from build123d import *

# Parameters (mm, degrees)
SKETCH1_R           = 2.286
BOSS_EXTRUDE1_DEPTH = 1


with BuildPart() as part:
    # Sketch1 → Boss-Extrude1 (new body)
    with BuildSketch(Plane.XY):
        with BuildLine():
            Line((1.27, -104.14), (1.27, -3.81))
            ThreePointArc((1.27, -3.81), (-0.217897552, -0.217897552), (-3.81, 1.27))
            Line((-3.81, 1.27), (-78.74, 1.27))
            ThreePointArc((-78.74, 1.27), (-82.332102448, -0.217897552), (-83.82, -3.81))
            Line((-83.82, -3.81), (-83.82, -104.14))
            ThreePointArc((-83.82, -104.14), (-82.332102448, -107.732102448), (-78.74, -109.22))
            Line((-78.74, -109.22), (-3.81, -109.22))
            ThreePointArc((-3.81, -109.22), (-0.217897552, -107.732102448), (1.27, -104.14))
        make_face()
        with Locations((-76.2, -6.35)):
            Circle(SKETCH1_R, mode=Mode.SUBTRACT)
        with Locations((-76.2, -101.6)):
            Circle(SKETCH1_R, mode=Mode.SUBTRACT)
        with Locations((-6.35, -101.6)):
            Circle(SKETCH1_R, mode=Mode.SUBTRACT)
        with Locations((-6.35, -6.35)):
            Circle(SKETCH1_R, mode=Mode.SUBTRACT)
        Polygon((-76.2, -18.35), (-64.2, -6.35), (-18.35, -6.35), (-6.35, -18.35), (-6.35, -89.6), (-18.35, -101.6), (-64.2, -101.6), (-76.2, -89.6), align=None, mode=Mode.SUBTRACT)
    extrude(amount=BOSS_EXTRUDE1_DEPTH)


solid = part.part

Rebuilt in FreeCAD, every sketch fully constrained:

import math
import FreeCAD as App
import Part
import Sketcher

V = App.Vector
Q = App.Units.Quantity


def add_polygon(sketch, points):
    """Adds a closed chain of lines whose ends are joined by coincident constraints."""
    first, n = sketch.GeometryCount, len(points)
    for a, b in zip(points, points[1:] + points[:1]):
        sketch.addGeometry(Part.LineSegment(App.Vector(*a, 0), App.Vector(*b, 0)), False)
    for i in range(n):
        sketch.addConstraint(Sketcher.Constraint("Coincident", first + i, 2, first + (i + 1) % n, 1))

doc = App.newDocument("Part")
params = doc.addObject("Spreadsheet::Sheet", "Params")
for row, (alias, value) in enumerate([
    ("sketch1_radius", "0.2 in"),
    ("sketch1_diameter", "0.18 in"),
    ("sketch1_width", "2.95 in"),
    ("sketch1_height", "3.95 in"),
    ("pad1_length", "1 mm"),
], start=1):
    params.set(f"A{row}", alias)
    params.set(f"B{row}", "=" + value)
    params.setAlias(f"B{row}", alias)

body = doc.addObject("PartDesign::Body", "Body")

# Sketch on XY plane
sketch1 = body.newObject("Sketcher::SketchObject", "Sketch")
sketch1.AttachmentSupport = (doc.getObject("XY_Plane"), [""])
sketch1.MapMode = "FlatFace"
sketch1.addGeometry(Part.LineSegment(V(1.27, -104.14, 0), V(1.27, -3.81, 0)), False)  # 0
sketch1.addGeometry(Part.ArcOfCircle(Part.Circle(V(-3.81, -3.81, 0), V(0, 0, 1), 5.08), math.radians(0), math.radians(90)), False)  # 1
sketch1.addGeometry(Part.LineSegment(V(-3.81, 1.27, 0), V(-78.74, 1.27, 0)), False)  # 2
sketch1.addGeometry(Part.ArcOfCircle(Part.Circle(V(-78.74, -3.81, 0), V(0, 0, 1), 5.08), math.radians(90), math.radians(180)), False)  # 3
sketch1.addGeometry(Part.LineSegment(V(-83.82, -3.81, 0), V(-83.82, -104.14, 0)), False)  # 4
sketch1.addGeometry(Part.ArcOfCircle(Part.Circle(V(-78.74, -104.14, 0), V(0, 0, 1), 5.08), math.radians(-180), math.radians(-90)), False)  # 5
sketch1.addGeometry(Part.LineSegment(V(-78.74, -109.22, 0), V(-3.81, -109.22, 0)), False)  # 6
sketch1.addGeometry(Part.ArcOfCircle(Part.Circle(V(-3.81, -104.14, 0), V(0, 0, 1), 5.08), math.radians(-90), math.radians(0)), False)  # 7
sketch1.addGeometry(Part.Circle(V(-76.2, -101.6, 0), V(0, 0, 1), 2.286), False)  # 8
sketch1.addGeometry(Part.Circle(V(-6.35, -101.6, 0), V(0, 0, 1), 2.286), False)  # 9
add_polygon(sketch1, [(-76.2, -89.6), (-76.2, -18.35), (-64.2, -6.35), (-18.35, -6.35), (-6.35, -18.35), (-6.35, -89.6), (-18.35, -101.6), (-64.2, -101.6)])  # lines 10-17
sketch1.addGeometry(Part.Circle(V(-76.2, -6.35, 0), V(0, 0, 1), 2.286), False)  # 18
sketch1.addGeometry(Part.Circle(V(-6.35, -6.35, 0), V(0, 0, 1), 2.286), False)  # 19
sketch1.addConstraint([
    Sketcher.Constraint("Tangent", 0, 2, 1, 1),
    Sketcher.Constraint("Tangent", 1, 2, 2, 1),
    Sketcher.Constraint("Tangent", 2, 2, 3, 1),
    Sketcher.Constraint("Tangent", 3, 2, 4, 1),
    Sketcher.Constraint("Tangent", 4, 2, 5, 1),
    Sketcher.Constraint("Tangent", 5, 2, 6, 1),
    Sketcher.Constraint("Tangent", 6, 2, 7, 1),
    Sketcher.Constraint("Tangent", 7, 2, 0, 1),
    Sketcher.Constraint("Vertical", 0),
    Sketcher.Constraint("Horizontal", 2),
    Sketcher.Constraint("Vertical", 4),
    Sketcher.Constraint("Horizontal", 6),
    Sketcher.Constraint("Vertical", 10),
    Sketcher.Constraint("Horizontal", 12),
    Sketcher.Constraint("Vertical", 14),
    Sketcher.Constraint("Horizontal", 16),
    Sketcher.Constraint("Equal", 1, 3),
    Sketcher.Constraint("Equal", 3, 5),
    Sketcher.Constraint("Equal", 5, 7),
    Sketcher.Constraint("Equal", 8, 9),
    Sketcher.Constraint("Equal", 9, 18),
    Sketcher.Constraint("Equal", 18, 19),
    Sketcher.Constraint("Perpendicular", 11, 13),
    Sketcher.Constraint("Perpendicular", 13, 15),
    Sketcher.Constraint("Perpendicular", 15, 17),
    Sketcher.Constraint("Horizontal", 8, 3, 9, 3),
    Sketcher.Constraint("Horizontal", 18, 3, 19, 3),
    Sketcher.Constraint("Horizontal", 19, 3, 11, 2),
    Sketcher.Constraint("Horizontal", 10, 2, 13, 2),
    Sketcher.Constraint("Horizontal", 9, 3, 15, 2),
    Sketcher.Constraint("Horizontal", 14, 2, 17, 2),
    Sketcher.Constraint("Vertical", 8, 3, 18, 3),
    Sketcher.Constraint("Vertical", 9, 3, 19, 3),
    Sketcher.Constraint("Vertical", 18, 3, 10, 2),
    Sketcher.Constraint("Vertical", 19, 3, 13, 2),
    Sketcher.Constraint("Vertical", 12, 2, 15, 2),
    Sketcher.Constraint("Vertical", 11, 2, 16, 2),
    Sketcher.Constraint("Radius", 1, Q("0.2 in")),
    Sketcher.Constraint("Diameter", 8, Q("0.18 in")),
    Sketcher.Constraint("DistanceX", 8, 3, -1, 1, Q("3 in")),
    Sketcher.Constraint("DistanceY", 8, 3, -1, 1, Q("4 in")),
    Sketcher.Constraint("DistanceX", 2, 2, 2, 1, Q("2.95 in")),
    Sketcher.Constraint("DistanceY", 0, 1, 0, 2, Q("3.95 in")),
    Sketcher.Constraint("DistanceX", 3, 3, -1, 1, Q("3.1 in")),
    Sketcher.Constraint("DistanceY", 5, 3, -1, 1, Q("4.1 in")),
    Sketcher.Constraint("DistanceX", 9, 3, 7, 3, Q("0.1 in")),
    Sketcher.Constraint("DistanceY", 18, 3, 3, 3, Q("0.1 in")),
    Sketcher.Constraint("DistanceX", 12, 1, 12, 2, 45.85),
])
sketch1.setExpression("Constraints[45]", "Params.sketch1_radius")
sketch1.setExpression("Constraints[46]", "Params.sketch1_diameter")
sketch1.setExpression("Constraints[49]", "Params.sketch1_width")
sketch1.setExpression("Constraints[50]", "Params.sketch1_height")
pad1 = body.newObject("PartDesign::Pad", "Pad")
pad1.Profile = sketch1
pad1.setExpression("Length", "Params.pad1_length")

doc.recompute()
